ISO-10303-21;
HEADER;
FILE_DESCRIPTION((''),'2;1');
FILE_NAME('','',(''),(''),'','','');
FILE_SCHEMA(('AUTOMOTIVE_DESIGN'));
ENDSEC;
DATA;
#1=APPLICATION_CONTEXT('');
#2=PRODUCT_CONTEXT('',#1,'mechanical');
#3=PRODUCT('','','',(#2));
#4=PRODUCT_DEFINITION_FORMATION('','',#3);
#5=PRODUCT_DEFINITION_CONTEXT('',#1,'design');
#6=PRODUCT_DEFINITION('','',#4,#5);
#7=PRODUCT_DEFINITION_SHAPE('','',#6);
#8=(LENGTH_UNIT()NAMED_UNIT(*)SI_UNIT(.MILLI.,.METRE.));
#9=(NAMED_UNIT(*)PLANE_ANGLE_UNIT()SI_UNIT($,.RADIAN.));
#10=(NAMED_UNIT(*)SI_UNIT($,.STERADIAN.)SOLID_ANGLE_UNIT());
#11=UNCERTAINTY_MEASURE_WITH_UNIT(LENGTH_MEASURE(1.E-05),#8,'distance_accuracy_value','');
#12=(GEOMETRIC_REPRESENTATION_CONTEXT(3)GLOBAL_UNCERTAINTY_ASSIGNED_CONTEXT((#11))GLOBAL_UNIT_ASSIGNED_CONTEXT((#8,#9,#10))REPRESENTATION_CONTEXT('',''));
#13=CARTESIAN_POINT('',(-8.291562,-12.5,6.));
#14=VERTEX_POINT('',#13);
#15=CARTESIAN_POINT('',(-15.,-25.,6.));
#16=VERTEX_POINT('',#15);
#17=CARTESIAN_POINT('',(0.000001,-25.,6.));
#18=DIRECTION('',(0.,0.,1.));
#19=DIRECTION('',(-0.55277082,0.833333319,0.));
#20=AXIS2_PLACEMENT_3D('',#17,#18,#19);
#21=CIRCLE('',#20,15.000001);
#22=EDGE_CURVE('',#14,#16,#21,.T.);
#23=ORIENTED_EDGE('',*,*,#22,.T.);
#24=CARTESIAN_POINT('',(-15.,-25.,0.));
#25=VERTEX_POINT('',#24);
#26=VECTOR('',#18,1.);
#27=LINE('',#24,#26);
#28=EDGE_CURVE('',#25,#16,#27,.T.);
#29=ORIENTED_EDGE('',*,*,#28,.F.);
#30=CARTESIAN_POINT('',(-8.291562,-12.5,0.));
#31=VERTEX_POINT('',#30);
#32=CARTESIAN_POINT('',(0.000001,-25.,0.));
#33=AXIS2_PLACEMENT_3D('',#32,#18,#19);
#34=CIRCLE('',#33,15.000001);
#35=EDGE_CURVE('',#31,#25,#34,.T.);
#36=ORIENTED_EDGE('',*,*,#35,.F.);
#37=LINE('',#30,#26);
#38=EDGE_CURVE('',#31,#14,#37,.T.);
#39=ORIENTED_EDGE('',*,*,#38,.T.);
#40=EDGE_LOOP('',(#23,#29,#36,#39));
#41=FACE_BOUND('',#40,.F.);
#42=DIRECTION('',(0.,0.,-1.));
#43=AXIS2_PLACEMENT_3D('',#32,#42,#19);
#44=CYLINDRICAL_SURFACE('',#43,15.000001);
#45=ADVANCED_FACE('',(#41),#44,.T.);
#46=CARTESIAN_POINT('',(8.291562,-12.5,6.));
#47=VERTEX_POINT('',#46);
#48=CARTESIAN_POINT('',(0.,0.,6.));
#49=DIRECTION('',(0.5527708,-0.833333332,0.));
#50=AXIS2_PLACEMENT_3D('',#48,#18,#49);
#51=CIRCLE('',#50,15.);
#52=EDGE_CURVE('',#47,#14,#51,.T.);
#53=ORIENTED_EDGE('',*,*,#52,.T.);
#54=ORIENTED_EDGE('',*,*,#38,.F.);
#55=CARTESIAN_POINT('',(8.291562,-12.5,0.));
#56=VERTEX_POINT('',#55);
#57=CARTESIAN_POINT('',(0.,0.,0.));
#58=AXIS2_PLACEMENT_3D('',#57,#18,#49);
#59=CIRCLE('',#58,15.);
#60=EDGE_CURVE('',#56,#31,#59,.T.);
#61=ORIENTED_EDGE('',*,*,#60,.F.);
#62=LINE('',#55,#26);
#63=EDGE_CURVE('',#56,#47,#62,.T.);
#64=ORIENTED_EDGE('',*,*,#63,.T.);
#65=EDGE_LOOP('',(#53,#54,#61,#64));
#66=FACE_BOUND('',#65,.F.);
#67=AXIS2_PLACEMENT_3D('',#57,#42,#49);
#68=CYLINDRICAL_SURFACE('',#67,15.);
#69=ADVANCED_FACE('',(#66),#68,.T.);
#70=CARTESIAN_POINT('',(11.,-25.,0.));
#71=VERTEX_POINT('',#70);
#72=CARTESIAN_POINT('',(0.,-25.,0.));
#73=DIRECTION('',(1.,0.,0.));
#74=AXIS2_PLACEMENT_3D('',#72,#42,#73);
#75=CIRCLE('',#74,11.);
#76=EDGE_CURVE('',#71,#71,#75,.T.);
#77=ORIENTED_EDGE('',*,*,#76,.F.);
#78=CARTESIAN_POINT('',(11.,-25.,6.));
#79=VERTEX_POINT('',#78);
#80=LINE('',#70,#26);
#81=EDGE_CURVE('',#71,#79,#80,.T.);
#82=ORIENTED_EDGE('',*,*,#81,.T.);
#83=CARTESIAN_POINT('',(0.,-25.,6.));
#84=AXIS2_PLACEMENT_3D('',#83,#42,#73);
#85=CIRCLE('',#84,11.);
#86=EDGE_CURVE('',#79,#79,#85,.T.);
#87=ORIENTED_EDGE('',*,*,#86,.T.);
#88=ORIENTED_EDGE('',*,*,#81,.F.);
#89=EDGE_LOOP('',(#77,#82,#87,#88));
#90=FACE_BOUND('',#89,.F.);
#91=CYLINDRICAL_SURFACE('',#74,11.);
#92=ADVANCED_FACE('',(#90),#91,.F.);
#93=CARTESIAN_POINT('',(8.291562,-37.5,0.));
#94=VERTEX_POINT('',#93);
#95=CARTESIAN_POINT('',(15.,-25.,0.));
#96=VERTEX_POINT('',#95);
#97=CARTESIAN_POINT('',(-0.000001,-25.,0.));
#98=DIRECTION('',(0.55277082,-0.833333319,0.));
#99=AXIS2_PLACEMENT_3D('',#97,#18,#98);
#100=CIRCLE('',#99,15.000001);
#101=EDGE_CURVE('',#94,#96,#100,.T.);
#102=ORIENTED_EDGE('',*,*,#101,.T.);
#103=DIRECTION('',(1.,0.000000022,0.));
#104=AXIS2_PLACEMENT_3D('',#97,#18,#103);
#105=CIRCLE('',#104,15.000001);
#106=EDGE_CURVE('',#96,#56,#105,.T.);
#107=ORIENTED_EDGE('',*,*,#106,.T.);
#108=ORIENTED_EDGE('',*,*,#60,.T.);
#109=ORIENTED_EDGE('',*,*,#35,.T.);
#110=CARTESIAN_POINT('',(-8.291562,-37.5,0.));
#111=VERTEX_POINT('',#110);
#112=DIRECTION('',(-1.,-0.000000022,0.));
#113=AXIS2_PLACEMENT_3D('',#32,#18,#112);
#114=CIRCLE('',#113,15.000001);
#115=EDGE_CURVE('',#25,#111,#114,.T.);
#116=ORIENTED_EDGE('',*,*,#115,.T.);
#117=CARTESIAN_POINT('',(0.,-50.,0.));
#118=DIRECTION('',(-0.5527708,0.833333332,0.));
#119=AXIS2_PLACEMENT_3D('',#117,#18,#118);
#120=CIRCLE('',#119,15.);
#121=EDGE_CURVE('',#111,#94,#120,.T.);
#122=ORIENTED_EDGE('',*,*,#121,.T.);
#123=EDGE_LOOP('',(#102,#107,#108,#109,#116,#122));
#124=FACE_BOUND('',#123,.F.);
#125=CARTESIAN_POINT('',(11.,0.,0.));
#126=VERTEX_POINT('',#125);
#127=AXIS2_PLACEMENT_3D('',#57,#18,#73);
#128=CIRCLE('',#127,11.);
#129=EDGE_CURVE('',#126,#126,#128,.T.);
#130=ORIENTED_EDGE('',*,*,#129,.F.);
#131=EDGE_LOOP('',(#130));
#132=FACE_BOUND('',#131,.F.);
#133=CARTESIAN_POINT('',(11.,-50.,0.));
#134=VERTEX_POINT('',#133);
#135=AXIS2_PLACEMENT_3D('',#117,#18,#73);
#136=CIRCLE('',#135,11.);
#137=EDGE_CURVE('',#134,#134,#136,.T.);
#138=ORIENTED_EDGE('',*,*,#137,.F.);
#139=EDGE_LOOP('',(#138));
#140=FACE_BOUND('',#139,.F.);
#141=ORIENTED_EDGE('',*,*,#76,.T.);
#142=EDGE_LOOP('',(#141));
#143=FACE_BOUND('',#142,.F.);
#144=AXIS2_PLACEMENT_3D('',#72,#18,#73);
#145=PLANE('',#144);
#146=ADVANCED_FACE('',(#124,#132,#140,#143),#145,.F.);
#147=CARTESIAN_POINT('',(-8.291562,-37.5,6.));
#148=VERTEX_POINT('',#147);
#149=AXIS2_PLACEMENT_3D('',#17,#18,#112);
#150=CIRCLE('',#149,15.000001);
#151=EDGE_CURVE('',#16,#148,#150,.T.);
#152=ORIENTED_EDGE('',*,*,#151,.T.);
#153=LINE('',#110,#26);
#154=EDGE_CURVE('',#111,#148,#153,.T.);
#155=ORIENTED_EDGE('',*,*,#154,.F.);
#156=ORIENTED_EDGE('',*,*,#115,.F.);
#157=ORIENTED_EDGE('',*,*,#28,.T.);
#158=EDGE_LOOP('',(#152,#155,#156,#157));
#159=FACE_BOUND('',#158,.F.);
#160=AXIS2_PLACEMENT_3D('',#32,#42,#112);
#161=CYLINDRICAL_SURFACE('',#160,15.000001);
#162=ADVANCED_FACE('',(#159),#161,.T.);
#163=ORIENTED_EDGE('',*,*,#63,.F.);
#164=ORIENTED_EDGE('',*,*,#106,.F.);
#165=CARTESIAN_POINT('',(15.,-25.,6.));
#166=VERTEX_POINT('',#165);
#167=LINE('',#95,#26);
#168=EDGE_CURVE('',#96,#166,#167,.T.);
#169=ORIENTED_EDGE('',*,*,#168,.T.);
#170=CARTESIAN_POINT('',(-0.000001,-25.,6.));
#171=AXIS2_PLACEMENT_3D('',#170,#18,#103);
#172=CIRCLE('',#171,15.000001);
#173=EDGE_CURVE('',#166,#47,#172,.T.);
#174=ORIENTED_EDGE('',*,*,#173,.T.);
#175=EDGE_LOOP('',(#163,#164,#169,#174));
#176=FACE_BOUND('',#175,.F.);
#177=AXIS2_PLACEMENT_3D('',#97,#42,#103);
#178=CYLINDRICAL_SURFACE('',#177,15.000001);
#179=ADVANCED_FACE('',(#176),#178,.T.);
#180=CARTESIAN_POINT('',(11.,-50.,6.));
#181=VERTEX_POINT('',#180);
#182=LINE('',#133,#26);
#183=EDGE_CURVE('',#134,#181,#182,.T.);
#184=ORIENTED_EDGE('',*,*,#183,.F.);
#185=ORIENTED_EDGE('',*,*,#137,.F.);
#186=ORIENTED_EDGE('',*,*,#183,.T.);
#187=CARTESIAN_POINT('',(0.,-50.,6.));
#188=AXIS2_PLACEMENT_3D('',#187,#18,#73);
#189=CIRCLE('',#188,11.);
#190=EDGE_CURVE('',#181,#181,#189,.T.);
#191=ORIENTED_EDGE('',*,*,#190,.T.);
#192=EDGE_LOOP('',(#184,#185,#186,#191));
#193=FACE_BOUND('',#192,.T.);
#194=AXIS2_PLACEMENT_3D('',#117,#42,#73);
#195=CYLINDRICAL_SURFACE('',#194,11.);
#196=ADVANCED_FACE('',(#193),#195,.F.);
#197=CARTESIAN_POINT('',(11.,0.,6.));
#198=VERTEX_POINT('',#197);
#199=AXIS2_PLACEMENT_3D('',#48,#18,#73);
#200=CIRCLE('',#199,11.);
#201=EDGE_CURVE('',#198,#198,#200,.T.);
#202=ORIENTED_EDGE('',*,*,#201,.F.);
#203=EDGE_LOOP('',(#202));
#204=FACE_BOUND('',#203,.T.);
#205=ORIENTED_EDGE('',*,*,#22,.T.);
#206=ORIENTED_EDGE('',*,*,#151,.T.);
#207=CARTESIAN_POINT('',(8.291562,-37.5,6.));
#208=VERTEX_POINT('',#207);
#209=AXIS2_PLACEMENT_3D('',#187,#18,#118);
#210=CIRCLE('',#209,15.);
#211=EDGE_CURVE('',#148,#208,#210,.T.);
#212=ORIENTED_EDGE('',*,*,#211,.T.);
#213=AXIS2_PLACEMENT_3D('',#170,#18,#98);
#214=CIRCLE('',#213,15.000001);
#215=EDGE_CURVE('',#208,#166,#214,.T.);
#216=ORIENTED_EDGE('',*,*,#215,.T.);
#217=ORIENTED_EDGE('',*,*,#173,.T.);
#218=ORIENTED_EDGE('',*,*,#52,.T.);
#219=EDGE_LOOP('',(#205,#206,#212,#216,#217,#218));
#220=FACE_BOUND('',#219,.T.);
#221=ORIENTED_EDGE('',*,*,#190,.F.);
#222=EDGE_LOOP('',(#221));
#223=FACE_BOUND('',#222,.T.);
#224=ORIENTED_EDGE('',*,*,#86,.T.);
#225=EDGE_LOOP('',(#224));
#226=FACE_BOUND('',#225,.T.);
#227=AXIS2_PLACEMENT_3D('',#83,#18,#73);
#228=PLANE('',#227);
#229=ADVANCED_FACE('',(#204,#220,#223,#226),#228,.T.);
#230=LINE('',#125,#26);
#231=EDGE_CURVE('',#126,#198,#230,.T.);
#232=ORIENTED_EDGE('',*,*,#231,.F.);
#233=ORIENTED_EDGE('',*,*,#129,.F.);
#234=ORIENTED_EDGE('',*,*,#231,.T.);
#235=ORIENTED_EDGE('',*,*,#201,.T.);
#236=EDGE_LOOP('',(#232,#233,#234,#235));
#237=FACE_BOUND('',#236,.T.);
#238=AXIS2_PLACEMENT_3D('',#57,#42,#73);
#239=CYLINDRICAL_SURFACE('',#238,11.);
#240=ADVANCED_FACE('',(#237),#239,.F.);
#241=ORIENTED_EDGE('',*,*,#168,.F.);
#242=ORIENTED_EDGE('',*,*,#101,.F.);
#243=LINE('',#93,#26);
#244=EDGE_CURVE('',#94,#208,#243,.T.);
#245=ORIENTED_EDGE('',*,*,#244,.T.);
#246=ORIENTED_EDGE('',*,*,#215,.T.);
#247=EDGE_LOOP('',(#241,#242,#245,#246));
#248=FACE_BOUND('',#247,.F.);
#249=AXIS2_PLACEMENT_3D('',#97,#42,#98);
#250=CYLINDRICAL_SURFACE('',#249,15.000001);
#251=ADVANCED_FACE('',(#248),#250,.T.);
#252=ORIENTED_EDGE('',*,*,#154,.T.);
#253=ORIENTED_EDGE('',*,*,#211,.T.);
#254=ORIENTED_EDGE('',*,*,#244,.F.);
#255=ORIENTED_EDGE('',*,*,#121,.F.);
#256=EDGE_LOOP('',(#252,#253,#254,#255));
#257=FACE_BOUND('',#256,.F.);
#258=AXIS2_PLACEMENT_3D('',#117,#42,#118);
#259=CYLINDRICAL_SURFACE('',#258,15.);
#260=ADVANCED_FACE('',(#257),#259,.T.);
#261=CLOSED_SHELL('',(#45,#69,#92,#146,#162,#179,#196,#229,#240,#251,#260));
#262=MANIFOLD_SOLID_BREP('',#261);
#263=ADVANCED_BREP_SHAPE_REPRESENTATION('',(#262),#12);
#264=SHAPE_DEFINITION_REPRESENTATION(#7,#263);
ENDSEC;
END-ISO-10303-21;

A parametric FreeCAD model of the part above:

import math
import FreeCAD as App
import Part
import Sketcher

V = App.Vector
Q = App.Units.Quantity

doc = App.newDocument("Part")
params = doc.addObject("Spreadsheet::Sheet", "Params")
for row, (alias, value) in enumerate([
    ("sketch1_diameter", "22 mm"),
    ("sketch1_radius", "15 mm"),
    ("pad1_length", "6 mm"),
], start=1):
    params.set(f"A{row}", alias)
    params.set(f"B{row}", "=" + value)
    params.setAlias(f"B{row}", alias)

body = doc.addObject("PartDesign::Body", "Body")

# Sketch on XY plane
sketch1 = body.newObject("Sketcher::SketchObject", "Sketch")
sketch1.AttachmentSupport = (doc.getObject("XY_Plane"), [""])
sketch1.MapMode = "FlatFace"
sketch1.addGeometry(Part.ArcOfCircle(Part.Circle(V(0, 0, 0), V(0, 0, 1), 15), math.radians(-56.44269), math.radians(236.44269)), False)
sketch1.addGeometry(Part.ArcOfCircle(Part.Circle(V(0.000001, -25, 0), V(0, 0, 1), 15.000001), math.radians(123.557311), math.radians(179.999999)), False)
sketch1.addGeometry(Part.ArcOfCircle(Part.Circle(V(0.000001, -25, 0), V(0, 0, 1), 15.000001), math.radians(-179.999999), math.radians(-123.557311)), False)
sketch1.addGeometry(Part.ArcOfCircle(Part.Circle(V(0, -50, 0), V(0, 0, 1), 15), math.radians(123.55731), math.radians(416.44269)), False)
sketch1.addGeometry(Part.ArcOfCircle(Part.Circle(V(-0.000001, -25, 0), V(0, 0, 1), 15.000001), math.radians(-56.442689), math.radians(-0.000001)), False)
sketch1.addGeometry(Part.ArcOfCircle(Part.Circle(V(-0.000001, -25, 0), V(0, 0, 1), 15.000001), math.radians(0.000001), math.radians(56.442689)), False)
sketch1.addGeometry(Part.Circle(V(0, -50, 0), V(0, 0, 1), 11), False)
sketch1.addGeometry(Part.Circle(V(0, -25, 0), V(0, 0, 1), 11), False)
sketch1.addGeometry(Part.Circle(V(0, 0, 0), V(0, 0, 1), 11), False)
sketch1.addConstraint(Sketcher.Constraint("Coincident", 0, 2, 1, 1))
sketch1.addConstraint(Sketcher.Constraint("Tangent", 1, 2, 2, 1))
sketch1.addConstraint(Sketcher.Constraint("Coincident", 2, 2, 3, 1))
sketch1.addConstraint(Sketcher.Constraint("Coincident", 3, 2, 4, 1))
sketch1.addConstraint(Sketcher.Constraint("Tangent", 4, 2, 5, 1))
sketch1.addConstraint(Sketcher.Constraint("Coincident", 5, 2, 0, 1))
sketch1.addConstraint(Sketcher.Constraint("Coincident", 0, 3, -1, 1))
sketch1.addConstraint(Sketcher.Constraint("Coincident", 8, 3, -1, 1))
sketch1.addConstraint(Sketcher.Constraint("Coincident", 4, 3, 1, 3))
sketch1.addConstraint(Sketcher.Constraint("Coincident", 6, 3, 3, 3))
sketch1.addConstraint(Sketcher.Constraint("Coincident", 7, 3, 1, 3))
sketch1.addConstraint(Sketcher.Constraint("Equal", 0, 1))
sketch1.addConstraint(Sketcher.Constraint("Equal", 1, 2))
sketch1.addConstraint(Sketcher.Constraint("Equal", 2, 3))
sketch1.addConstraint(Sketcher.Constraint("Equal", 3, 4))
sketch1.addConstraint(Sketcher.Constraint("Equal", 4, 5))
sketch1.addConstraint(Sketcher.Constraint("Equal", 6, 7))
sketch1.addConstraint(Sketcher.Constraint("Equal", 7, 8))
sketch1.addConstraint(Sketcher.Constraint("Symmetric", 2, 2, 3, 2, -2))
sketch1.addConstraint(Sketcher.Constraint("Horizontal", 7, 3, 1, 2))
sketch1.addConstraint(Sketcher.Constraint("Horizontal", 1, 2, 4, 2))
sketch1.addConstraint(Sketcher.Constraint("Vertical", 0, 2, 2, 2))
sketch1.addConstraint(Sketcher.Constraint("Diameter", 6, Q("22 mm")))
sketch1.addConstraint(Sketcher.Constraint("Radius", 0, Q("15 mm")))
sketch1.addConstraint(Sketcher.Constraint("DistanceY", 1, 3, -1, 1, Q("25 mm")))
sketch1.setExpression("Constraints[22]", "Params.sketch1_diameter")
sketch1.setExpression("Constraints[23]", "Params.sketch1_radius")
pad1 = body.newObject("PartDesign::Pad", "Pad")
pad1.Profile = sketch1
pad1.setExpression("Length", "Params.pad1_length")

doc.recompute()
